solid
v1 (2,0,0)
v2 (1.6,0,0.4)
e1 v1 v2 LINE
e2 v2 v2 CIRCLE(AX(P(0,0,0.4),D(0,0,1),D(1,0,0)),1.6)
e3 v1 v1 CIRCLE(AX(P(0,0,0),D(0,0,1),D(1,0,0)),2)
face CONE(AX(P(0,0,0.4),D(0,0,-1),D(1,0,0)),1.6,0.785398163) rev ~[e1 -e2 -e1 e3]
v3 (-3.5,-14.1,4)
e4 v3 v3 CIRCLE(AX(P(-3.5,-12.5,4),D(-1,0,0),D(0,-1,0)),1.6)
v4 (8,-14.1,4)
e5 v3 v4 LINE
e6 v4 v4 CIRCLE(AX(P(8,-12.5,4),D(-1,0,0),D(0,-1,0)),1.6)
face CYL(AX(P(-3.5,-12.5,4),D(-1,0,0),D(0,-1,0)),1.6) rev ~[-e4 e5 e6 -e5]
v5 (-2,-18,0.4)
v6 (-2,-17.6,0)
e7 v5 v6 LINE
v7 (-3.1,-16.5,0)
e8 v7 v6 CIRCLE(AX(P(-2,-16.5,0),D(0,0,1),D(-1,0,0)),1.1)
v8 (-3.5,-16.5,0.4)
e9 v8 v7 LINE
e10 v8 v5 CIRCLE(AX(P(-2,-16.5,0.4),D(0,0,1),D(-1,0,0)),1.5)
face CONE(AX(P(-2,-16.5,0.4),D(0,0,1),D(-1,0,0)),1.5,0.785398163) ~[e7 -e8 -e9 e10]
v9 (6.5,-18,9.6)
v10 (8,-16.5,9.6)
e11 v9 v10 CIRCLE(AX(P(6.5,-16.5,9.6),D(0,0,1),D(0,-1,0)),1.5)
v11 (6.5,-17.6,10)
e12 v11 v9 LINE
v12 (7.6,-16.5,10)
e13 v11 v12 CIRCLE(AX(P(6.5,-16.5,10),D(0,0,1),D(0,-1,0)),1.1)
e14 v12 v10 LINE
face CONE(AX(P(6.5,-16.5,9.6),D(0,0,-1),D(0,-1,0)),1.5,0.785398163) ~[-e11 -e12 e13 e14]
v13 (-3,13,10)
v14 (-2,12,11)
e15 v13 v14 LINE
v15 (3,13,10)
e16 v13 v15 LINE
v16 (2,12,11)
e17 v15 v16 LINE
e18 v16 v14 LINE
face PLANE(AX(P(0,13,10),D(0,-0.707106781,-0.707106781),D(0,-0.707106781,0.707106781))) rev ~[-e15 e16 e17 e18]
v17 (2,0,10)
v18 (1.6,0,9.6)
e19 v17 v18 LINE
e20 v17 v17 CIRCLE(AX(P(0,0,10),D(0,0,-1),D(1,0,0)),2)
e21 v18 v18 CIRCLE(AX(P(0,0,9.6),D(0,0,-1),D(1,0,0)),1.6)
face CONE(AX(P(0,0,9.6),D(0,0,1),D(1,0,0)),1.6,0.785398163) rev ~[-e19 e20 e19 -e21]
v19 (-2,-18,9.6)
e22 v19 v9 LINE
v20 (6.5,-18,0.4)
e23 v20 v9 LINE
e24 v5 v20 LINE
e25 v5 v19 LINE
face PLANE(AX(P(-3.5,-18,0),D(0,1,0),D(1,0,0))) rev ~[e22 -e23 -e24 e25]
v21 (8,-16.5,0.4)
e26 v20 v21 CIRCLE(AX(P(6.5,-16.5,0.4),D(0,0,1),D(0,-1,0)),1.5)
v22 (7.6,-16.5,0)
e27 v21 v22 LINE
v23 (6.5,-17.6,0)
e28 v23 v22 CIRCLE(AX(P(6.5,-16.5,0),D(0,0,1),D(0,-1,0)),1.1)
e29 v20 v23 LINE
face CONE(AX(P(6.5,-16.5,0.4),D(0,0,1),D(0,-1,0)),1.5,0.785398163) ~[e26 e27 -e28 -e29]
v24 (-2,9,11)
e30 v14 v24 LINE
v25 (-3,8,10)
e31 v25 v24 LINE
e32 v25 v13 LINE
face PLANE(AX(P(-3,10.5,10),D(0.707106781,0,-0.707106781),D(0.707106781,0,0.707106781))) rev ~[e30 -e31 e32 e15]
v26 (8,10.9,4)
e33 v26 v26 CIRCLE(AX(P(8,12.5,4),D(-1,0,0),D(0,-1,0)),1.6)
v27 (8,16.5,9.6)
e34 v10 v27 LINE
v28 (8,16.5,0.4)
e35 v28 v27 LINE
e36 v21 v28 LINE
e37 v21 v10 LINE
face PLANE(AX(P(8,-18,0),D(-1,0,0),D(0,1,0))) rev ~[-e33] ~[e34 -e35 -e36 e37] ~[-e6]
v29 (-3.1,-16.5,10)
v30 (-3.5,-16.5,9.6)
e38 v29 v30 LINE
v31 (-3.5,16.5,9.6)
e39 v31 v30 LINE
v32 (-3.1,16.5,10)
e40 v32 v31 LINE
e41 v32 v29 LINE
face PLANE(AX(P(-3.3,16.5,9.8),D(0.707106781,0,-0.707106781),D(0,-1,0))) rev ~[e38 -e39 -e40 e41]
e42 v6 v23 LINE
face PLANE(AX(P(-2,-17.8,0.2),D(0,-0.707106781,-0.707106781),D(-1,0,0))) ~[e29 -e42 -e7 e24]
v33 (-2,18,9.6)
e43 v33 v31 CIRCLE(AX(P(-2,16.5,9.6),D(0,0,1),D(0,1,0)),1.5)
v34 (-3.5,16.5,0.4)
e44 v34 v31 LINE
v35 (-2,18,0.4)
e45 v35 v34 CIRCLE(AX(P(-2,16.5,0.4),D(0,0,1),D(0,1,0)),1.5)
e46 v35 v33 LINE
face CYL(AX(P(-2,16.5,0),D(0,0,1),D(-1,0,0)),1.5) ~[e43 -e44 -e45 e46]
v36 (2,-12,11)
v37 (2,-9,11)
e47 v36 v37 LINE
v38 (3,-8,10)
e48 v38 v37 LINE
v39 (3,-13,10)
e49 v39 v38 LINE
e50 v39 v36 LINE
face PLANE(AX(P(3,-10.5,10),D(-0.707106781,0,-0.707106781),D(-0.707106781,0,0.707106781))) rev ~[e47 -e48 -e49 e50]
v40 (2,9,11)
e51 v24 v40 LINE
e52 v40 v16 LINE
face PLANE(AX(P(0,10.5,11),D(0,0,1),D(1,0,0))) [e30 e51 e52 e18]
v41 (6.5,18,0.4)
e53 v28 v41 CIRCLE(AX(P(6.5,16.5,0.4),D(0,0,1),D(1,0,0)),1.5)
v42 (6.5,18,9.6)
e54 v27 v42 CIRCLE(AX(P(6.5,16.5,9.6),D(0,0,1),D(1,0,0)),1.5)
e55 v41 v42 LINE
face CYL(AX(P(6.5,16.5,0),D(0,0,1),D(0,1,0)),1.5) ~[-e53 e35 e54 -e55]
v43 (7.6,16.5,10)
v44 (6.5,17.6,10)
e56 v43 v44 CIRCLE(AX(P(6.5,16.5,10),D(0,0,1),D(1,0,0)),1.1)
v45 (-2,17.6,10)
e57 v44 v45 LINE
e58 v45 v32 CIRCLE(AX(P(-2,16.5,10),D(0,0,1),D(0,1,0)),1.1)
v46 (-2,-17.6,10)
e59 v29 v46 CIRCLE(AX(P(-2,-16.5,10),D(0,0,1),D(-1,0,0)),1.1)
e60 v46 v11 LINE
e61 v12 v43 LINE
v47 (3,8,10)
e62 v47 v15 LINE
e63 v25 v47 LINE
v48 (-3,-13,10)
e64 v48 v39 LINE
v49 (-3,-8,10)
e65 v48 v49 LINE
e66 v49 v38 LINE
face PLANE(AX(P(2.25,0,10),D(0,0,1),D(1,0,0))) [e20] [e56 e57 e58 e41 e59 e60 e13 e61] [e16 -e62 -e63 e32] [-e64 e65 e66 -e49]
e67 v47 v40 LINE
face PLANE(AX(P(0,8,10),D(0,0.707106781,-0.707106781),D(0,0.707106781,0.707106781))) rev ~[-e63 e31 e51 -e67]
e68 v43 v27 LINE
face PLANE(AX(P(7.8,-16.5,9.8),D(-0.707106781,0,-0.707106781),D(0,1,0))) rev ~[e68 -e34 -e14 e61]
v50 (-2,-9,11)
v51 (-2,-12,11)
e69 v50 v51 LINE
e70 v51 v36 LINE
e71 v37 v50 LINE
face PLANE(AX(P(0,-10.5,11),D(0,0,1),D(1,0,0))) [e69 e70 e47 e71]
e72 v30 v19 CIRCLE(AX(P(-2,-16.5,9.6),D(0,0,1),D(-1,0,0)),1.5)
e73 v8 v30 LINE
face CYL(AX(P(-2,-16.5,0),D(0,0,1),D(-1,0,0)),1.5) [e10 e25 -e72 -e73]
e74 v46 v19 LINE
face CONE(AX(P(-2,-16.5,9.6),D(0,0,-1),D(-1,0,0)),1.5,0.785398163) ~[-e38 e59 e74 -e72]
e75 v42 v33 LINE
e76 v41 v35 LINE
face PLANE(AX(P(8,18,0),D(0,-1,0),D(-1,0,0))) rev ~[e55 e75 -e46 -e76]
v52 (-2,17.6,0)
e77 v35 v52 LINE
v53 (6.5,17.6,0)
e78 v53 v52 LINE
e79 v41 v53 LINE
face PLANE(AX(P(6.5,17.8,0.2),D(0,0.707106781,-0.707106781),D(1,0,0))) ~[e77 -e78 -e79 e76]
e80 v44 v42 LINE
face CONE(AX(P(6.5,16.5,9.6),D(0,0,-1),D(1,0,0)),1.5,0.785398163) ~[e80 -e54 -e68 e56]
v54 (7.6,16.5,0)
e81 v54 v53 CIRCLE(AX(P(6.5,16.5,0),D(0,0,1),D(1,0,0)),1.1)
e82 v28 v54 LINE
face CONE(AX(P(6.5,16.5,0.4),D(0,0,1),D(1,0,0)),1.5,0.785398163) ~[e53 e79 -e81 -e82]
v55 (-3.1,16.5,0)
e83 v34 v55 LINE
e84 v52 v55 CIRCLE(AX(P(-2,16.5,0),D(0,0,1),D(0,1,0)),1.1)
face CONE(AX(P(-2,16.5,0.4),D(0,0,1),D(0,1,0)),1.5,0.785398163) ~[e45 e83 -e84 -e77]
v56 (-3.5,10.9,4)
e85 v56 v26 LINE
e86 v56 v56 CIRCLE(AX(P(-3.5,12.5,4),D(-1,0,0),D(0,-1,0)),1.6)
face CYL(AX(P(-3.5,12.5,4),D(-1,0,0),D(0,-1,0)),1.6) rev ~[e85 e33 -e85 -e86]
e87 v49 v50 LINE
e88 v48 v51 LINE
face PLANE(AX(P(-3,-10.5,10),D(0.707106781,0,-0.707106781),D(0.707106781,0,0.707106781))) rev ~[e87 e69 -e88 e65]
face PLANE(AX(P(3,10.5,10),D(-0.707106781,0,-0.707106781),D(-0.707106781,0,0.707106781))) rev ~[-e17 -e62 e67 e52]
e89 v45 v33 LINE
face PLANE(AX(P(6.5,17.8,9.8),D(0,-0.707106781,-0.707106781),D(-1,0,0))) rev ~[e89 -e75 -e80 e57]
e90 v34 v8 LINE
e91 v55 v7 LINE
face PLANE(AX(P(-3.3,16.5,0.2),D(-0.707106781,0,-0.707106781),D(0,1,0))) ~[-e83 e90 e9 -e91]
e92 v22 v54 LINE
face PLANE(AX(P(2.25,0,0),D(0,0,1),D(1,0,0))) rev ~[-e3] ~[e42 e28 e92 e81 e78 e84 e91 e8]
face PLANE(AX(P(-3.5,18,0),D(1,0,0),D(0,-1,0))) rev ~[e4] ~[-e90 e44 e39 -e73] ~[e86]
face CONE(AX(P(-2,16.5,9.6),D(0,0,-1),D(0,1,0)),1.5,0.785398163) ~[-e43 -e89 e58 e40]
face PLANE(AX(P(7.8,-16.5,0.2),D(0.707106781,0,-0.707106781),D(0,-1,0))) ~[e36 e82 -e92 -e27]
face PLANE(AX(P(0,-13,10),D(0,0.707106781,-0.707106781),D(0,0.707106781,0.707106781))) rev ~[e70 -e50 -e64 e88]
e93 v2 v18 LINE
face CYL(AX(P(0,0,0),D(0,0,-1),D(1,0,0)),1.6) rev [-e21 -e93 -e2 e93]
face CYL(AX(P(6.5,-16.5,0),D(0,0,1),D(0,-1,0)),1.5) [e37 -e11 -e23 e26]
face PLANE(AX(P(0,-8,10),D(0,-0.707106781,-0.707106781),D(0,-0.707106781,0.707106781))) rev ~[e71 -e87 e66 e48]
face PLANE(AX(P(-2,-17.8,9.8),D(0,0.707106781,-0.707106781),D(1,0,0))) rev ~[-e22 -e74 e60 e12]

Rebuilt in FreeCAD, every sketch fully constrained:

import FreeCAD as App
import Part
import Sketcher

V = App.Vector


def edges_at(feature, points):
    """Names of the edges that pass closest to the given points."""
    edges = feature.Shape.Edges
    near = lambda p: min(range(len(edges)), key=lambda i: edges[i].distToShape(Part.Vertex(*p))[0])
    return sorted({f"Edge{near(p) + 1}" for p in points})


def add_polygon(sketch, points):
    """Adds a closed chain of lines whose ends are joined by coincident constraints."""
    first, n = sketch.GeometryCount, len(points)
    for a, b in zip(points, points[1:] + points[:1]):
        sketch.addGeometry(Part.LineSegment(App.Vector(*a, 0), App.Vector(*b, 0)), False)
    for i in range(n):
        sketch.addConstraint(Sketcher.Constraint("Coincident", first + i, 2, first + (i + 1) % n, 1))

doc = App.newDocument("Part")
body = doc.addObject("PartDesign::Body", "Body")

sketch1 = body.newObject("Sketcher::SketchObject", "Sketch")
sketch1.AttachmentSupport = (doc.getObject("XY_Plane"), [""])
sketch1.MapMode = "FlatFace"
add_polygon(sketch1, [(-4, 18), (-4, -18), (8, -18), (8, 18)])
sketch1.addConstraint(Sketcher.Constraint("Vertical", 0))
sketch1.addConstraint(Sketcher.Constraint("Horizontal", 1))
sketch1.addConstraint(Sketcher.Constraint("Vertical", 2))
sketch1.addConstraint(Sketcher.Constraint("Horizontal", 3))
sketch1.addConstraint(Sketcher.Constraint("DistanceY", 0, 2, 0, 1, 36.0))
sketch1.addConstraint(Sketcher.Constraint("DistanceX", 1, 1, 1, 2, 11.5))
sketch1.addConstraint(Sketcher.Constraint("DistanceY", 0, 2, -1, 1, 18.0))
sketch1.addConstraint(Sketcher.Constraint("DistanceX", -1, 1, 1, 2, 8.0))
pad1 = body.newObject("PartDesign::Pad", "Pad")
pad1.Profile = sketch1
pad1.Length = 10

sketch2 = body.newObject("Sketcher::SketchObject", "Sketch001")
sketch2.AttachmentSupport = (doc.getObject("XY_Plane"), [""])
sketch2.MapMode = "FlatFace"
sketch2.addGeometry(Part.Circle(V(0, 0, 0), V(0, 0, 1), 1.6), False)
sketch2.addConstraint(Sketcher.Constraint("Coincident", 0, 3, -1, 1))
sketch2.addConstraint(Sketcher.Constraint("Diameter", 0, 3.2))
pocket1 = body.newObject("PartDesign::Pocket", "Pocket")
pocket1.Profile = sketch2
pocket1.Type = "ThroughAll"
pocket1.Midplane = True

sketch3 = body.newObject("Sketcher::SketchObject", "Sketch002")
sketch3.AttachmentSupport = (doc.getObject("XY_Plane"), [""])
sketch3.MapMode = "FlatFace"
sketch3.AttachmentOffset = App.Placement(V(0, 0, 10), App.Rotation())
add_polygon(sketch3, [(-3, 13), (-3, 8), (3, 8), (3, 13)])
add_polygon(sketch3, [(-3, -8), (-3, -13), (3, -13), (3, -8)])
sketch3.addConstraint(Sketcher.Constraint("Vertical", 0))
sketch3.addConstraint(Sketcher.Constraint("Horizontal", 1))
sketch3.addConstraint(Sketcher.Constraint("Vertical", 2))
sketch3.addConstraint(Sketcher.Constraint("Horizontal", 3))
sketch3.addConstraint(Sketcher.Constraint("Vertical", 4))
sketch3.addConstraint(Sketcher.Constraint("Horizontal", 5))
sketch3.addConstraint(Sketcher.Constraint("Vertical", 6))
sketch3.addConstraint(Sketcher.Constraint("Horizontal", 7))
sketch3.addConstraint(Sketcher.Constraint("Symmetric", 2, 2, 4, 2, -1, 1))
sketch3.addConstraint(Sketcher.Constraint("Symmetric", 0, 2, 6, 2, -1, 1))
sketch3.addConstraint(Sketcher.Constraint("Vertical", 3, 2, 4, 2))
sketch3.addConstraint(Sketcher.Constraint("DistanceX", 1, 1, 1, 2, 6.0))
sketch3.addConstraint(Sketcher.Constraint("DistanceY", 0, 2, 0, 1, 5.0))
sketch3.addConstraint(Sketcher.Constraint("DistanceY", -1, 1, 0, 2, 8.0))
pad2 = body.newObject("PartDesign::Pad", "Pad001")
pad2.Profile = sketch3
pad2.Length = 1
pad2.TaperAngle = -45

sketch4 = body.newObject("Sketcher::SketchObject", "Sketch003")
sketch4.AttachmentSupport = (doc.getObject("YZ_Plane"), [""])
sketch4.MapMode = "FlatFace"
sketch4.AttachmentOffset = App.Placement(V(0, 0, -3.5), App.Rotation())
sketch4.addGeometry(Part.Circle(V(12.5, 4, 0), V(0, 0, 1), 1.6), False)
sketch4.addGeometry(Part.Circle(V(-12.5, 4, 0), V(0, 0, 1), 1.6), False)
sketch4.addConstraint(Sketcher.Constraint("Equal", 0, 1))
sketch4.addConstraint(Sketcher.Constraint("Symmetric", 0, 3, 1, 3, -2))
sketch4.addConstraint(Sketcher.Constraint("Diameter", 0, 3.2))
sketch4.addConstraint(Sketcher.Constraint("DistanceY", -1, 1, 0, 3, 4.0))
sketch4.addConstraint(Sketcher.Constraint("DistanceX", 1, 3, 0, 3, 25.0))
pocket2 = body.newObject("PartDesign::Pocket", "Pocket001")
pocket2.Profile = sketch4
pocket2.Type = "ThroughAll"
pocket2.Midplane = True
doc.recompute()

fillet = body.newObject("PartDesign::Fillet", "Fillet")
fillet.Base = (pocket2, edges_at(pocket2, [
    (-3.5, -18, 5),
    (8, -18, 5),
    (-3.5, 18, 5),
    (8, 18, 5),
]))
fillet.Radius = 1.5
doc.recompute()

chamfer = body.newObject("PartDesign::Chamfer", "Chamfer")
chamfer.Base = (fillet, edges_at(fillet, [
    (-3.5, 0, 0),
    (-3.061, 17.561, 0),
    (-3.061, -17.561, 0),
    (2.25, 18, 0),
    (2.25, -18, 0),
    (7.561, 17.561, 0),
    (7.561, -17.561, 0),
    (8, 0, 0),
    (-1.6, 0, 0),
    (2.25, 18, 10),
    (-1.6, 0, 10),
]))
chamfer.Size = 0.4

doc.recompute()
